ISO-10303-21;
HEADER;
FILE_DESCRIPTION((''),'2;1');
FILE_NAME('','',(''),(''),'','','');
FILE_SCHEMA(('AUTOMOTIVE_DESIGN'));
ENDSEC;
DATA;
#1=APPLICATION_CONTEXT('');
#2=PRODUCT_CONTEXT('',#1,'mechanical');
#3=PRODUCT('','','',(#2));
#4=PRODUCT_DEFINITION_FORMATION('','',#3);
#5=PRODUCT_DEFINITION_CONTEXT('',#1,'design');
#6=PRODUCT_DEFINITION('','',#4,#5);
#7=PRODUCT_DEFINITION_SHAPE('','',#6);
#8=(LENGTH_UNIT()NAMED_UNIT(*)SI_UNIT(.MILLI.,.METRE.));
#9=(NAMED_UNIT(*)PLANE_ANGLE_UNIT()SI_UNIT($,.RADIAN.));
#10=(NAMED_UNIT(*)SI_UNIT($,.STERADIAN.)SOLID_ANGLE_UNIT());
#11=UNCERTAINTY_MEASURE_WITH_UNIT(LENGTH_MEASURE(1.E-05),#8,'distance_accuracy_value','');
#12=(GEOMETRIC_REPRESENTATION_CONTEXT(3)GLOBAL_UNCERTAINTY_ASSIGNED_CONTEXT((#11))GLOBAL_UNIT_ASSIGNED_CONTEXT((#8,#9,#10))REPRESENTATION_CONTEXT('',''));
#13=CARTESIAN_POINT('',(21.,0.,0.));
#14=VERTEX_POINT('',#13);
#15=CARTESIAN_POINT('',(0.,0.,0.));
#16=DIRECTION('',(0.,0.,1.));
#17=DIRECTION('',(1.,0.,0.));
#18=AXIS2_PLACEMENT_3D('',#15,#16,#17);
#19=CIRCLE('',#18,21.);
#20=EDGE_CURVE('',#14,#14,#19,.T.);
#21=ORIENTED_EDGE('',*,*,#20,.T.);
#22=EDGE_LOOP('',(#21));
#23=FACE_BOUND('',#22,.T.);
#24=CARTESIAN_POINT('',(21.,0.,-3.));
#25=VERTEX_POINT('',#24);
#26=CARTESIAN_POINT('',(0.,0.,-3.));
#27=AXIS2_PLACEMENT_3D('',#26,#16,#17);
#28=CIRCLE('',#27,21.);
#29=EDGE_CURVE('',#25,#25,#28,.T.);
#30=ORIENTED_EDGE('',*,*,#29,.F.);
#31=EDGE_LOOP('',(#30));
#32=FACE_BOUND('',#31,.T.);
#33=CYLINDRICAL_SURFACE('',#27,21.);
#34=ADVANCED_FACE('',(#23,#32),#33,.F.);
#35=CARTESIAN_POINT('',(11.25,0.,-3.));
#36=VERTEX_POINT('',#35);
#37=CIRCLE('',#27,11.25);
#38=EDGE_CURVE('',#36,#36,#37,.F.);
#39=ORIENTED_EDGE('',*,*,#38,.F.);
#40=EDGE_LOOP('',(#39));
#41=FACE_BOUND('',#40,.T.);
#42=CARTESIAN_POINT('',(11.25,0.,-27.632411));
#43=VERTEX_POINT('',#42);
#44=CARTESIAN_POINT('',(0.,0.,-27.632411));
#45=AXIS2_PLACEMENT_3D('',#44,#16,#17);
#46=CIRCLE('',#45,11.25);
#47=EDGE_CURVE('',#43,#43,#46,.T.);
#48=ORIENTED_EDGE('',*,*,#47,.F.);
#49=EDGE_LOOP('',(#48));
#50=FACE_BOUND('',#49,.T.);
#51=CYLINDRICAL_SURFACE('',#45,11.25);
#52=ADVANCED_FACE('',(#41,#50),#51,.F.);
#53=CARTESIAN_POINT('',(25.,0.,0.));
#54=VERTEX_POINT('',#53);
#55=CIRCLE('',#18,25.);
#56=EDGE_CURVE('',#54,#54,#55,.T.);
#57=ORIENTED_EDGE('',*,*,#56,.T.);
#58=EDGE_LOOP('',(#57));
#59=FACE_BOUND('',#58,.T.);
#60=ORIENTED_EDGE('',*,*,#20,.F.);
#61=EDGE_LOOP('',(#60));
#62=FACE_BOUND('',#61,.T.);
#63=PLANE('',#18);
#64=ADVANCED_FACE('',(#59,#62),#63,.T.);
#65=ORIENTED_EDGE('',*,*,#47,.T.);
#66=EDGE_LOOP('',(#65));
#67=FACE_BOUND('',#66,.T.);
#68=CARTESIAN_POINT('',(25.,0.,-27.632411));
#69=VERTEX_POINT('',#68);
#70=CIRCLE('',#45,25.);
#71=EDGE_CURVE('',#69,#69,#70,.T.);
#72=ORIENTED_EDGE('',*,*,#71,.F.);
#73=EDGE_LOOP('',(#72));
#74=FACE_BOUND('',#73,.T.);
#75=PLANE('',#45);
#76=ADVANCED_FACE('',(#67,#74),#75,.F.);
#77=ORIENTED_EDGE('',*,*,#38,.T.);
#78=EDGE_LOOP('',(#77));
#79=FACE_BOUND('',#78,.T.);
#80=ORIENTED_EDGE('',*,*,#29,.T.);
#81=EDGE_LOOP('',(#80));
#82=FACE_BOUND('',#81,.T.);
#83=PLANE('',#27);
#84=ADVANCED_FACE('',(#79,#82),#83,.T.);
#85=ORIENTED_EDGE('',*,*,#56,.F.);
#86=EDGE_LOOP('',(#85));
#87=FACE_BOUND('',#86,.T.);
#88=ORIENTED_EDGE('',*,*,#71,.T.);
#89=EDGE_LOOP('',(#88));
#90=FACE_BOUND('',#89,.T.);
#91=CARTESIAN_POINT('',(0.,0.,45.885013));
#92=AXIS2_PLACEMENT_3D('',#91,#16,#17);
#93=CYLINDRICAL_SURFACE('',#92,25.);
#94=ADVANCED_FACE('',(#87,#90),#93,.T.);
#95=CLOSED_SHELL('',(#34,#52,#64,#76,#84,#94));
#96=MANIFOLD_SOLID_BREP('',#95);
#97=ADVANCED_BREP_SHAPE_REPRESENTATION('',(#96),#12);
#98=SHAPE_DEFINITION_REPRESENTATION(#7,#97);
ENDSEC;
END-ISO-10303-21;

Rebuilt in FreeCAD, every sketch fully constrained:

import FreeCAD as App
import Part
import Sketcher

V = App.Vector


def add_polygon(sketch, points):
    """Adds a closed chain of lines whose ends are joined by coincident constraints."""
    first, n = sketch.GeometryCount, len(points)
    for a, b in zip(points, points[1:] + points[:1]):
        sketch.addGeometry(Part.LineSegment(App.Vector(*a, 0), App.Vector(*b, 0)), False)
    for i in range(n):
        sketch.addConstraint(Sketcher.Constraint("Coincident", first + i, 2, first + (i + 1) % n, 1))

doc = App.newDocument("Part")
body = doc.addObject("PartDesign::Body", "Body")

# Sketch on YZ plane
sketch1 = body.newObject("Sketcher::SketchObject", "Sketch")
sketch1.AttachmentSupport = (doc.getObject("YZ_Plane"), [""])
sketch1.MapMode = "FlatFace"
add_polygon(sketch1, [(0, 0), (-25, 0), (-25, -28), (0, -28)])  # lines 0-3
sketch1.addConstraint(Sketcher.Constraint("Horizontal", 0))
sketch1.addConstraint(Sketcher.Constraint("Vertical", 1))
sketch1.addConstraint(Sketcher.Constraint("Horizontal", 2))
sketch1.addConstraint(Sketcher.Constraint("Vertical", 3))
sketch1.addConstraint(Sketcher.Constraint("Coincident", 3, 2, -1, 1))
sketch1.addConstraint(Sketcher.Constraint("DistanceX", 0, 2, 0, 1, 25.0))
sketch1.addConstraint(Sketcher.Constraint("DistanceY", 1, 2, 1, 1, 27.632411))
revolution = body.newObject("PartDesign::Revolution", "Revolution")
revolution.Profile = sketch1
revolution.ReferenceAxis = (sketch1, ["V_Axis"])
revolution.Angle = 360

# Sketch on XY plane
sketch2 = body.newObject("Sketcher::SketchObject", "Sketch001")
sketch2.AttachmentSupport = (doc.getObject("XY_Plane"), [""])
sketch2.MapMode = "FlatFace"
sketch2.addGeometry(Part.Circle(V(0, 0, 0), V(0, 0, 1), 11), False)
sketch2.addConstraint(Sketcher.Constraint("Coincident", 0, 3, -1, 1))
sketch2.addConstraint(Sketcher.Constraint("Diameter", 0, 22.5))
pocket1 = body.newObject("PartDesign::Pocket", "Pocket")
pocket1.Profile = sketch2
pocket1.Type = "ThroughAll"

# Sketch on XY plane
sketch3 = body.newObject("Sketcher::SketchObject", "Sketch002")
sketch3.AttachmentSupport = (doc.getObject("XY_Plane"), [""])
sketch3.MapMode = "FlatFace"
sketch3.addGeometry(Part.Circle(V(0, 0, 0), V(0, 0, 1), 21), False)
sketch3.addConstraint(Sketcher.Constraint("Coincident", 0, 3, -1, 1))
sketch3.addConstraint(Sketcher.Constraint("Diameter", 0, 42.0))
pocket2 = body.newObject("PartDesign::Pocket", "Pocket001")
pocket2.Profile = sketch3
pocket2.Length = 3

doc.recompute()
